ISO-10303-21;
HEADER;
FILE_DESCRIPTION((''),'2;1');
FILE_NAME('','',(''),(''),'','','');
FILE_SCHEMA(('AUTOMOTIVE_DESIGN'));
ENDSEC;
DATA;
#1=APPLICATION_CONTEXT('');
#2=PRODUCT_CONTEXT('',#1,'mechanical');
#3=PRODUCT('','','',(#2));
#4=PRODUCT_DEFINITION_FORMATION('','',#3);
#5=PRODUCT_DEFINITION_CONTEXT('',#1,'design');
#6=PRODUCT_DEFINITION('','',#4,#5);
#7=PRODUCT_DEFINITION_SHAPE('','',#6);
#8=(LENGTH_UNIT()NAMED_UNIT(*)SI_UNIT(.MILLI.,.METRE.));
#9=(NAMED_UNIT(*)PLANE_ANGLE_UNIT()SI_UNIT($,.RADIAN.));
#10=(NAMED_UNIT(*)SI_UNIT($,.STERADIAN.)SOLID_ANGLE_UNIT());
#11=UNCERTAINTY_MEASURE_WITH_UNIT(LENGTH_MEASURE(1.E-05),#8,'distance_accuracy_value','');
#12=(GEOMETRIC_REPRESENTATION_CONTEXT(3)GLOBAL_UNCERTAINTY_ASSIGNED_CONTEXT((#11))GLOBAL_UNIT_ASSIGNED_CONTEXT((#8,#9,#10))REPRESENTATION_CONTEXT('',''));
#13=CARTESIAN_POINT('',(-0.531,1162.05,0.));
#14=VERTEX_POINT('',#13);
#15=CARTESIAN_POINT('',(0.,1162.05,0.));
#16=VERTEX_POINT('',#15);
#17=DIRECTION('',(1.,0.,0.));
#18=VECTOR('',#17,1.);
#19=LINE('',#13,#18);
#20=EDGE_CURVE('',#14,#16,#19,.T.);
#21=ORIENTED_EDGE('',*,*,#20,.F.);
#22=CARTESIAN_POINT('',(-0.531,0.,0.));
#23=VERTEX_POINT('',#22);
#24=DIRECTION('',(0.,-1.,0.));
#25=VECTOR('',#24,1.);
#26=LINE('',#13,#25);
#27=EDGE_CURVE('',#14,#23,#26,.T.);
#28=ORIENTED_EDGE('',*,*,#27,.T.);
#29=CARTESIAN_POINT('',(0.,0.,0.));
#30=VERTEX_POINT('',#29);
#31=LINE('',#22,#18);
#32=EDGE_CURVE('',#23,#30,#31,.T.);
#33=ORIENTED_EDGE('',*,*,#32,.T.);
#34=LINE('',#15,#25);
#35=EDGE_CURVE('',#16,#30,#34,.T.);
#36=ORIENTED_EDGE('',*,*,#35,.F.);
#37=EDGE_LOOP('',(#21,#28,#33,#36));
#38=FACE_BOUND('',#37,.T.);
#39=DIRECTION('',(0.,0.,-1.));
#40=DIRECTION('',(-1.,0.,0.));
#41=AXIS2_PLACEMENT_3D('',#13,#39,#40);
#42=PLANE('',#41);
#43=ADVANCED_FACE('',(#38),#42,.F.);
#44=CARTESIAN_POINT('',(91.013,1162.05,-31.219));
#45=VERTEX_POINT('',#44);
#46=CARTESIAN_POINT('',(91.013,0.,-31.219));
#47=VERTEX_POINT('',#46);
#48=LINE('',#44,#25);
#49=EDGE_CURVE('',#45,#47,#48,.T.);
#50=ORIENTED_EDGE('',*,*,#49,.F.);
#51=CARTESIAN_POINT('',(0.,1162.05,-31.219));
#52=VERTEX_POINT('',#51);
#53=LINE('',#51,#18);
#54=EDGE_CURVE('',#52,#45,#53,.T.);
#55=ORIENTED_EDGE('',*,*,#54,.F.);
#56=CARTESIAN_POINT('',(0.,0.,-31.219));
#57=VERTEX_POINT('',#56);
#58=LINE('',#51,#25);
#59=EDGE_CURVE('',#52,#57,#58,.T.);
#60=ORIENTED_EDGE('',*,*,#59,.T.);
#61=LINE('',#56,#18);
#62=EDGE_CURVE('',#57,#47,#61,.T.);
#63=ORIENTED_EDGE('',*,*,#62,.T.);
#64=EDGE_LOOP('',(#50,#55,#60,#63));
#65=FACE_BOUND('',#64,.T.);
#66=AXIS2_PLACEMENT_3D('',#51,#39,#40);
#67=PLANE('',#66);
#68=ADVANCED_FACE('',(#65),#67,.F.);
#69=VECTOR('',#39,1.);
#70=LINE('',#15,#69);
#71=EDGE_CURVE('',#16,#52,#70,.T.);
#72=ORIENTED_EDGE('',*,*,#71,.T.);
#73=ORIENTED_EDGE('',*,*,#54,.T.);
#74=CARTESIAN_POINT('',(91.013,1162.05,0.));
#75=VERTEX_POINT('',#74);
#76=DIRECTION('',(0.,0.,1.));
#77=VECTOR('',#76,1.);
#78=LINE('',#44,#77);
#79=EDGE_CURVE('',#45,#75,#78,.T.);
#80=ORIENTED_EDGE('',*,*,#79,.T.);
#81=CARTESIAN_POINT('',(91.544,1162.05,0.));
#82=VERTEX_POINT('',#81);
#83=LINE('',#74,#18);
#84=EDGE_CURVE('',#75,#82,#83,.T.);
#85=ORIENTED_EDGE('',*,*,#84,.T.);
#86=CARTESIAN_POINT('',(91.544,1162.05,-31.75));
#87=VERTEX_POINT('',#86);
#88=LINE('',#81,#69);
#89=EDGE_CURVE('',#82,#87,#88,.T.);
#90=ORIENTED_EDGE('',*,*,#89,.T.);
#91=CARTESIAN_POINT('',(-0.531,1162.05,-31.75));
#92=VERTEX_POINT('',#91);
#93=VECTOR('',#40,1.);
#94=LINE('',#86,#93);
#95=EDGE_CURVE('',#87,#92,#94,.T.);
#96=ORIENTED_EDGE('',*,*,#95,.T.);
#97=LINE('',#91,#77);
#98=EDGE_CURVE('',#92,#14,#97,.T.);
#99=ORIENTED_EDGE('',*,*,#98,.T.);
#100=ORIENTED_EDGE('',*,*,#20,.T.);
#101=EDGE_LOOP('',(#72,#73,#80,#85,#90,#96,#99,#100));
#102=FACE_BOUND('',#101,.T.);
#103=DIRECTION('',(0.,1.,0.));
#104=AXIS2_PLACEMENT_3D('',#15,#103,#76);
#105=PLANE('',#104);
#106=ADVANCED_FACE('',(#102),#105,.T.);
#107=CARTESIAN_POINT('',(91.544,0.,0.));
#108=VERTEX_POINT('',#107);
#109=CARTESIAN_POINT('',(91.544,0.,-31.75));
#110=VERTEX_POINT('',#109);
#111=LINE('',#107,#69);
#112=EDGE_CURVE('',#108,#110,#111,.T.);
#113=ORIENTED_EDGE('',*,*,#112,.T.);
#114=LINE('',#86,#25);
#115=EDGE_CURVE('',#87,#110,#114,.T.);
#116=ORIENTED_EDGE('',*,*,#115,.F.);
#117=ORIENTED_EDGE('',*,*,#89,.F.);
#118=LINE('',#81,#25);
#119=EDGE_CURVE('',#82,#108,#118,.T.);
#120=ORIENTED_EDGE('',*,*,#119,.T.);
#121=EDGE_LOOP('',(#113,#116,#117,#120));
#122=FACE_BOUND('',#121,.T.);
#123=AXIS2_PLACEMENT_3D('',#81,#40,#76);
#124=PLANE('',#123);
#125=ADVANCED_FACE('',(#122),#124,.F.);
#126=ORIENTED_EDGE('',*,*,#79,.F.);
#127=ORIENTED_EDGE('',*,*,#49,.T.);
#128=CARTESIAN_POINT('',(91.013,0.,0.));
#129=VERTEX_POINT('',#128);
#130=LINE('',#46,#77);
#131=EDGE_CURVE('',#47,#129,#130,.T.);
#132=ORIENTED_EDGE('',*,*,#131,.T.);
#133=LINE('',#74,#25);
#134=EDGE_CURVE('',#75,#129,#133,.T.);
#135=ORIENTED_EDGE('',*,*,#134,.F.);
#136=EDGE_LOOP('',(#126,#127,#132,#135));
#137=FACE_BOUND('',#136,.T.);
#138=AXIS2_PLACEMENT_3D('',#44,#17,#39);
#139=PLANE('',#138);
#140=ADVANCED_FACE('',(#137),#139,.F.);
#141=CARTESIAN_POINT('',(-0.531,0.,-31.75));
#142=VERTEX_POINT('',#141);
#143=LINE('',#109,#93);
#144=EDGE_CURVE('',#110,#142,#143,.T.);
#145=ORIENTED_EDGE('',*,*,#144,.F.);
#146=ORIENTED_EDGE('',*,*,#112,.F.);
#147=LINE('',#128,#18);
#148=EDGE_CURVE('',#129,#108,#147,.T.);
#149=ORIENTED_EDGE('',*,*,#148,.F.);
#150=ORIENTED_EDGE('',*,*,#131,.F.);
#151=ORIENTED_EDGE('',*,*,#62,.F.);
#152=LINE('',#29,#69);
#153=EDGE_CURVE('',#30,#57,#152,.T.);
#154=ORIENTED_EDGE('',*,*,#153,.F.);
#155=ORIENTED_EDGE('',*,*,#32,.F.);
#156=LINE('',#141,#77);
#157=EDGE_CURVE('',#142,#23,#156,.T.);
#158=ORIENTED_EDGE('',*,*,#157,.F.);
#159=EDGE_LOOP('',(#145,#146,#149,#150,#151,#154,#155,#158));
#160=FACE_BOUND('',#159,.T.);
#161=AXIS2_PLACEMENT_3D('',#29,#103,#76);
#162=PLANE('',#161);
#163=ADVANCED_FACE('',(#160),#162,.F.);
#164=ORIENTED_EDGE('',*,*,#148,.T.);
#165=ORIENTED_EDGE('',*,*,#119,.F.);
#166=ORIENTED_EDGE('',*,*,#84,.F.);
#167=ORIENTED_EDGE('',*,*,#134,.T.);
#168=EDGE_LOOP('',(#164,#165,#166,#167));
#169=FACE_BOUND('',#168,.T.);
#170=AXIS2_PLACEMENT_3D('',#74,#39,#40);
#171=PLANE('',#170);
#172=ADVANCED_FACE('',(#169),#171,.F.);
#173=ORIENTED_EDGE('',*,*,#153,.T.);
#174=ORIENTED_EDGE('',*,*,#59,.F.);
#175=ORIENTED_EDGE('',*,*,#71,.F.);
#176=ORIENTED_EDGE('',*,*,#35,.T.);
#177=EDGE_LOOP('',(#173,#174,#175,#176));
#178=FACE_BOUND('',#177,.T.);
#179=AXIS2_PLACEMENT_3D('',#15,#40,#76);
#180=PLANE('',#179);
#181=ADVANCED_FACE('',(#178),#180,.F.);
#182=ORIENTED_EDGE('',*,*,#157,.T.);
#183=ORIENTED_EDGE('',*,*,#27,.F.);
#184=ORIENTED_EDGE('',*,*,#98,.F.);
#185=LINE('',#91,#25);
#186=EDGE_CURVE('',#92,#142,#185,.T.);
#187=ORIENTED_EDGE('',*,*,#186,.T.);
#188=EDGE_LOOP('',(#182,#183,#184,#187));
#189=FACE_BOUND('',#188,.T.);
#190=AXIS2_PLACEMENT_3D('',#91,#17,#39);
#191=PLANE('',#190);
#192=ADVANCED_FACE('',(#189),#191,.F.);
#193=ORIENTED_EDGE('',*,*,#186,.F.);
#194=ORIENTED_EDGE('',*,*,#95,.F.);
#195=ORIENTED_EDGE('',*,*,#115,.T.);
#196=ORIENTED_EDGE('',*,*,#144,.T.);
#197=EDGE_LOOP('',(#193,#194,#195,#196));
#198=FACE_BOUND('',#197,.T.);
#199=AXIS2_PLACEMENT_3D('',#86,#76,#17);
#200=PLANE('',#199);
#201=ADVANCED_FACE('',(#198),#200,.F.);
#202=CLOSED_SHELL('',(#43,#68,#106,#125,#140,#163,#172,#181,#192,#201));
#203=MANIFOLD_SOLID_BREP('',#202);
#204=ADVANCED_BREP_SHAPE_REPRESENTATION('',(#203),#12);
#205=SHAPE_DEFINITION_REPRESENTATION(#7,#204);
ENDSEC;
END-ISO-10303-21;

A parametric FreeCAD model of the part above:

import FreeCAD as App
import Part
import Sketcher

V = App.Vector
Q = App.Units.Quantity

doc = App.newDocument("Part")
body = doc.addObject("PartDesign::Body", "Body")

# Sketch on XZ plane
sketch1 = body.newObject("Sketcher::SketchObject", "Sketch")
sketch1.AttachmentSupport = (doc.getObject("XZ_Plane"), [""])
sketch1.MapMode = "FlatFace"
sketch1.addGeometry([
    Part.LineSegment(V(0, 0, 0), V(0, -31.2, 0)),  # 0
    Part.LineSegment(V(0, -31.2, 0), V(91, -31.2, 0)),  # 1
    Part.LineSegment(V(91, -31.2, 0), V(91, 0, 0)),  # 2
    Part.LineSegment(V(91, 0, 0), V(91.5, 0, 0)),  # 3
    Part.LineSegment(V(91.5, 0, 0), V(91.5, -31.8, 0)),  # 4
    Part.LineSegment(V(91.5, -31.8, 0), V(-0.5, -31.8, 0)),  # 5
    Part.LineSegment(V(-0.5, -31.8, 0), V(-0.5, 0, 0)),  # 6
    Part.LineSegment(V(-0.5, 0, 0), V(0, 0, 0)),  # 7
], False)
sketch1.addConstraint([
    Sketcher.Constraint("Coincident", 0, 2, 1, 1),
    Sketcher.Constraint("Coincident", 1, 2, 2, 1),
    Sketcher.Constraint("Coincident", 2, 2, 3, 1),
    Sketcher.Constraint("Coincident", 3, 2, 4, 1),
    Sketcher.Constraint("Coincident", 4, 2, 5, 1),
    Sketcher.Constraint("Coincident", 5, 2, 6, 1),
    Sketcher.Constraint("Coincident", 6, 2, 7, 1),
    Sketcher.Constraint("Coincident", 7, 2, 0, 1),
    Sketcher.Constraint("Vertical", 0),
    Sketcher.Constraint("Horizontal", 1),
    Sketcher.Constraint("Vertical", 2),
    Sketcher.Constraint("Horizontal", 3),
    Sketcher.Constraint("Vertical", 4),
    Sketcher.Constraint("Horizontal", 5),
    Sketcher.Constraint("Vertical", 6),
    Sketcher.Constraint("Horizontal", 7),
    Sketcher.Constraint("Coincident", 7, 2, -1, 1),
    Sketcher.Constraint("PointOnObject", 2, 2, -1),
    Sketcher.Constraint("Equal", 3, 7),
    Sketcher.Constraint("DistanceY", 4, 2, 4, 1, Q("1.25 in")),
    Sketcher.Constraint("DistanceX", 5, 2, 5, 1, Q("3.625 in")),
    Sketcher.Constraint("DistanceX", 1, 1, 1, 2, Q("91.013 mm")),
    Sketcher.Constraint("DistanceY", 0, 2, 0, 1, Q("31.219 mm")),
])
pad1 = body.newObject("PartDesign::Pad", "Pad")
pad1.Profile = sketch1
pad1.Length = Q("45.75 in")
pad1.Reversed = True

doc.recompute()
